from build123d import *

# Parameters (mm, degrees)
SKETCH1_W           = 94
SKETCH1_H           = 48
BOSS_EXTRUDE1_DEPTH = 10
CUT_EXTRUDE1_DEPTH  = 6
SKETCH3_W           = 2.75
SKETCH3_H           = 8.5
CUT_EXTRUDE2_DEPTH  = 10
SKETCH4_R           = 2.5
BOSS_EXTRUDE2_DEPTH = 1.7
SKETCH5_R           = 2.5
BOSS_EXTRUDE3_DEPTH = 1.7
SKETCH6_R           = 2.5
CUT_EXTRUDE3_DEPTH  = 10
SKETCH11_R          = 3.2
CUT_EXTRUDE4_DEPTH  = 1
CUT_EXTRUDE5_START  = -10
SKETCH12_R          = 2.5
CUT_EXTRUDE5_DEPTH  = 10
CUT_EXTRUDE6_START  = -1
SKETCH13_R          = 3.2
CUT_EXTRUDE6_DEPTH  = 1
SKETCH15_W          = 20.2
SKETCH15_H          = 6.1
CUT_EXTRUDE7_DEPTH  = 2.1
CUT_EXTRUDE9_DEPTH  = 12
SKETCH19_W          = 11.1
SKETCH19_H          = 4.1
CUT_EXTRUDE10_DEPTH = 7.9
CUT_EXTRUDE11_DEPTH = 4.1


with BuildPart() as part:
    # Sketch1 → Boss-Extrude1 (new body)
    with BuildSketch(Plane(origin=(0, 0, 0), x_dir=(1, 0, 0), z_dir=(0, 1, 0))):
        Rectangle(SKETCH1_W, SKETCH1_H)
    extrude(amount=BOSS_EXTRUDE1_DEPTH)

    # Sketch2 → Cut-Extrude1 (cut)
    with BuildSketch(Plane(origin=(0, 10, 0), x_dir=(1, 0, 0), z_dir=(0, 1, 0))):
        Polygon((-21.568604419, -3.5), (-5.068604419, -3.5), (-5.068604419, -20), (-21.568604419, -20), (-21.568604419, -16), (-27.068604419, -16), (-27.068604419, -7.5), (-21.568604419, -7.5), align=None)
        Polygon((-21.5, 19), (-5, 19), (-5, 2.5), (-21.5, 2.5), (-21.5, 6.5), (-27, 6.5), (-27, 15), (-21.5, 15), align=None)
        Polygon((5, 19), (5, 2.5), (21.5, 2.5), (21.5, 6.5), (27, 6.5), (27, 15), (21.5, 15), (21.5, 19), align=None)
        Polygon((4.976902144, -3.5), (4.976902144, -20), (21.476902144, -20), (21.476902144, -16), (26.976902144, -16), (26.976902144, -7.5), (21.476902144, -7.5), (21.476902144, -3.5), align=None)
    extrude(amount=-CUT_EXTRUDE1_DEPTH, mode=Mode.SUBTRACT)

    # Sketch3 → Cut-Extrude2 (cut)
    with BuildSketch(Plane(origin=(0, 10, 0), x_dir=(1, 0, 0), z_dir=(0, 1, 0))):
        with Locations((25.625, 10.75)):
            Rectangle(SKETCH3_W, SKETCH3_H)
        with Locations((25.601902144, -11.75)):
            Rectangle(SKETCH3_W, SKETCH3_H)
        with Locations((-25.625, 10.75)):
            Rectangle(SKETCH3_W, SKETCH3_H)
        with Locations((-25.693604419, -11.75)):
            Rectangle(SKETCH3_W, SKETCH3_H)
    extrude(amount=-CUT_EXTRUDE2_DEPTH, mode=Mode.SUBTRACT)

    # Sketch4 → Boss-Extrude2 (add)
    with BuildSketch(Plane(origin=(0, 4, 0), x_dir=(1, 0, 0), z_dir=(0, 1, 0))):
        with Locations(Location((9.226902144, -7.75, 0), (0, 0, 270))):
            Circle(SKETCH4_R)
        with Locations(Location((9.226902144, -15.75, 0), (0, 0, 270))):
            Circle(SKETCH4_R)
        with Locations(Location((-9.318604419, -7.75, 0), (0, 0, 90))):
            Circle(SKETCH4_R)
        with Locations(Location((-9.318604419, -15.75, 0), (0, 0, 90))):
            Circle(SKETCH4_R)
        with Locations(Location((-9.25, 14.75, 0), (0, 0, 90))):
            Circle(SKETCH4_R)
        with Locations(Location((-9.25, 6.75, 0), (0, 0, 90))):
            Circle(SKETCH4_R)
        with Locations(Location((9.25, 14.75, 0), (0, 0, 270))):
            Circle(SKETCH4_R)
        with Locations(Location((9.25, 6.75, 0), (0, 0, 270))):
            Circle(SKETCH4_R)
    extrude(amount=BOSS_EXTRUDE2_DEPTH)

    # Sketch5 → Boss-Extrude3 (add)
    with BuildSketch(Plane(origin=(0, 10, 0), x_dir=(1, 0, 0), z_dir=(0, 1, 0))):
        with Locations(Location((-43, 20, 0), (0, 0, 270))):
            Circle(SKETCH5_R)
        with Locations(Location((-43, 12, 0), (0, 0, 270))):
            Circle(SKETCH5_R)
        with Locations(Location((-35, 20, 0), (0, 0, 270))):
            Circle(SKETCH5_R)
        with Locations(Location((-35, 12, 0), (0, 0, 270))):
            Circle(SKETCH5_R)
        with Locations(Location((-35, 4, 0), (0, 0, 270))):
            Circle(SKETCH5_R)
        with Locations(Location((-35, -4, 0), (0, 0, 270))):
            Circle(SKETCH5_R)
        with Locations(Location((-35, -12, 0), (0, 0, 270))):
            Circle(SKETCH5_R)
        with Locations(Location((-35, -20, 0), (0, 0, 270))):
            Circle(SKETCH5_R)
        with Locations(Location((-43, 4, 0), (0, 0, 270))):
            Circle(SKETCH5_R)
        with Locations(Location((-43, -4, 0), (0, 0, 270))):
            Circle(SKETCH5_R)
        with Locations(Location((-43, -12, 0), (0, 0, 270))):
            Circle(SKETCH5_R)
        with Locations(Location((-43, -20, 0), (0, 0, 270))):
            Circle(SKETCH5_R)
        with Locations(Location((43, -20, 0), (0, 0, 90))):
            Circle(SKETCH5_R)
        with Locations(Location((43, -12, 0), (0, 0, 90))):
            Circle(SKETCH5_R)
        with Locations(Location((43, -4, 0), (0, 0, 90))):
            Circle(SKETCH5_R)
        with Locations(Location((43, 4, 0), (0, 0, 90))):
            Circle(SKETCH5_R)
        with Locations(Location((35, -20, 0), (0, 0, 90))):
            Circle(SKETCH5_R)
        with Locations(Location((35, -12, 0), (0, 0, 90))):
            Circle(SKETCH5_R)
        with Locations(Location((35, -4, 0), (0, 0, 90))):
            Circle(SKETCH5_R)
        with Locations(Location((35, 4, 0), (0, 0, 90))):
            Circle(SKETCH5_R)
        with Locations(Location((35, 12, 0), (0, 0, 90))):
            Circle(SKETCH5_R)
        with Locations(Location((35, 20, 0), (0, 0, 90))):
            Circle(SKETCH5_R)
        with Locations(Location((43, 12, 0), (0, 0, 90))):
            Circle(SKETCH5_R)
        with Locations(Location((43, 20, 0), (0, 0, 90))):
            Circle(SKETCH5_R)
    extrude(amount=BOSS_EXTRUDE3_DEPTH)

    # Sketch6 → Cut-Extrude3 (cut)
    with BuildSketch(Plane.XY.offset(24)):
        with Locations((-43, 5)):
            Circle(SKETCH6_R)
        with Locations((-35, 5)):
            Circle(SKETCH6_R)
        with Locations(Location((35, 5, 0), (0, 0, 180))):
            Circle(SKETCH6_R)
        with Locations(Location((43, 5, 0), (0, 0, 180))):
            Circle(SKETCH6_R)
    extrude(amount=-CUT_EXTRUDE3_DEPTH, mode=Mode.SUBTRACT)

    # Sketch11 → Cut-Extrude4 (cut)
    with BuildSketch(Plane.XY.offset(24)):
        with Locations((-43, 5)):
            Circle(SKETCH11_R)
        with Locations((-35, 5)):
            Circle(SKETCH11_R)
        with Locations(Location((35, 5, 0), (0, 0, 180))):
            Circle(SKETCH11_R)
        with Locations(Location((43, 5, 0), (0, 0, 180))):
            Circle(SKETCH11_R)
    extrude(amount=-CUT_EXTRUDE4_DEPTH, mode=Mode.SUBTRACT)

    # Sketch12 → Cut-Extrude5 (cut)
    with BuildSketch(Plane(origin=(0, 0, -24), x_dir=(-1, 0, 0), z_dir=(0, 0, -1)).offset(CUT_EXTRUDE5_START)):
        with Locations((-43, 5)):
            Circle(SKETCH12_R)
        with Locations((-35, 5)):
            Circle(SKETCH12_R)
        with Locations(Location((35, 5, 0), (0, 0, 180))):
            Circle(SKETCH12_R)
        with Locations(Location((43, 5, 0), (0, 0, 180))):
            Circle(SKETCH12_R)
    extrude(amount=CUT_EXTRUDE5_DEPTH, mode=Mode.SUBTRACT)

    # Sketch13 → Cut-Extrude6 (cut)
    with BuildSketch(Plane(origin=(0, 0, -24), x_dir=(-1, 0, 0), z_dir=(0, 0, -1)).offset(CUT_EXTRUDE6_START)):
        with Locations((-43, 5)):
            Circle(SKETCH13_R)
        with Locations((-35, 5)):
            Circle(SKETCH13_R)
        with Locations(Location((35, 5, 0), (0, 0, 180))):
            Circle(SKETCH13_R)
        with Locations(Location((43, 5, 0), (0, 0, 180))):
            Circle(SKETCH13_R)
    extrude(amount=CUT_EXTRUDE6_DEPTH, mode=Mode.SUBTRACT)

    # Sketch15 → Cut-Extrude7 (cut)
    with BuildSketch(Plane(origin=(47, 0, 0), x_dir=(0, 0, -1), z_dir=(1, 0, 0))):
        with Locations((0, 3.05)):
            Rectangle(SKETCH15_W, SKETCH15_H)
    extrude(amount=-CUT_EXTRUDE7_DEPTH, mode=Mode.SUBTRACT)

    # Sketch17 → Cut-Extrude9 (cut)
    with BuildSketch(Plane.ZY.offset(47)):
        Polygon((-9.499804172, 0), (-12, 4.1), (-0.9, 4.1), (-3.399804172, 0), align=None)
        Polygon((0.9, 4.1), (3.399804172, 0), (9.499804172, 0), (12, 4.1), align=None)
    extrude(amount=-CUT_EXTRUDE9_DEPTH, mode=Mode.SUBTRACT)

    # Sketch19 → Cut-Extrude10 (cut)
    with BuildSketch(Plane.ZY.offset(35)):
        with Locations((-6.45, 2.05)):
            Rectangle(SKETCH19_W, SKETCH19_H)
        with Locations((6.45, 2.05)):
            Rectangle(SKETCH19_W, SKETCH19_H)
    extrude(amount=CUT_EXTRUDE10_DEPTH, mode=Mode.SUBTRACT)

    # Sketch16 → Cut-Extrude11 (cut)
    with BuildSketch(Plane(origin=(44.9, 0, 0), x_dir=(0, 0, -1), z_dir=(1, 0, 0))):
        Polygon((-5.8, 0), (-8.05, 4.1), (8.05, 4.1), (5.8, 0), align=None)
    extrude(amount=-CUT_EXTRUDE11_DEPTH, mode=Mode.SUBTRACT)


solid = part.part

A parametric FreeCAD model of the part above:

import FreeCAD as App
import Part
import Sketcher

doc = App.newDocument("Part")
body = doc.addObject("PartDesign::Body", "Body")

# Sketch on XZ plane
sketch1 = body.newObject("Sketcher::SketchObject", "Sketch")
sketch1.AttachmentSupport = (doc.getObject("XZ_Plane"), [""])
sketch1.MapMode = "FlatFace"
sketch1.addGeometry(Part.LineSegment(App.Vector(-47, -24, 0), App.Vector(-47, 24, 0)), False)
sketch1.addGeometry(Part.LineSegment(App.Vector(-47, 24, 0), App.Vector(47, 24, 0)), False)
sketch1.addGeometry(Part.LineSegment(App.Vector(47, 24, 0), App.Vector(47, -24, 0)), False)
sketch1.addGeometry(Part.LineSegment(App.Vector(47, -24, 0), App.Vector(-47, -24, 0)), False)
sketch1.addConstraint(Sketcher.Constraint("Coincident", 0, 2, 1, 1))
sketch1.addConstraint(Sketcher.Constraint("Coincident", 1, 2, 2, 1))
sketch1.addConstraint(Sketcher.Constraint("Coincident", 2, 2, 3, 1))
sketch1.addConstraint(Sketcher.Constraint("Coincident", 3, 2, 0, 1))
sketch1.addConstraint(Sketcher.Constraint("Vertical", 0))
sketch1.addConstraint(Sketcher.Constraint("Horizontal", 1))
sketch1.addConstraint(Sketcher.Constraint("Vertical", 2))
sketch1.addConstraint(Sketcher.Constraint("Horizontal", 3))
sketch1.addConstraint(Sketcher.Constraint("Symmetric", 0, 2, 2, 2, -1, 1))
sketch1.addConstraint(Sketcher.Constraint("DistanceX", 1, 1, 1, 2, 94.0))
sketch1.addConstraint(Sketcher.Constraint("DistanceY", 0, 1, 0, 2, 48.0))
pad1 = body.newObject("PartDesign::Pad", "Pad")
pad1.Profile = sketch1
pad1.Length = 10
pad1.Reversed = True

# Sketch on XZ plane
sketch2 = body.newObject("Sketcher::SketchObject", "Sketch001")
sketch2.AttachmentSupport = (doc.getObject("XZ_Plane"), [""])
sketch2.MapMode = "FlatFace"
sketch2.AttachmentOffset = App.Placement(App.Vector(0, 0, -10), App.Rotation())
sketch2.addGeometry(Part.LineSegment(App.Vector(-5.1, 3.5, 0), App.Vector(-21.6, 3.5, 0)), False)
sketch2.addGeometry(Part.LineSegment(App.Vector(-21.6, 3.5, 0), App.Vector(-21.6, 7.5, 0)), False)
sketch2.addGeometry(Part.LineSegment(App.Vector(-21.6, 7.5, 0), App.Vector(-27.1, 7.5, 0)), False)
sketch2.addGeometry(Part.LineSegment(App.Vector(-27.1, 7.5, 0), App.Vector(-27.1, 16, 0)), False)
sketch2.addGeometry(Part.LineSegment(App.Vector(-27.1, 16, 0), App.Vector(-21.6, 16, 0)), False)
sketch2.addGeometry(Part.LineSegment(App.Vector(-21.6, 16, 0), App.Vector(-21.6, 20, 0)), False)
sketch2.addGeometry(Part.LineSegment(App.Vector(-21.6, 20, 0), App.Vector(-5.1, 20, 0)), False)
sketch2.addGeometry(Part.LineSegment(App.Vector(-5.1, 20, 0), App.Vector(-5.1, 3.5, 0)), False)
sketch2.addGeometry(Part.LineSegment(App.Vector(-5, -19, 0), App.Vector(-21.5, -19, 0)), False)
sketch2.addGeometry(Part.LineSegment(App.Vector(-21.5, -19, 0), App.Vector(-21.5, -15, 0)), False)
sketch2.addGeometry(Part.LineSegment(App.Vector(-21.5, -15, 0), App.Vector(-27, -15, 0)), False)
sketch2.addGeometry(Part.LineSegment(App.Vector(-27, -15, 0), App.Vector(-27, -6.5, 0)), False)
sketch2.addGeometry(Part.LineSegment(App.Vector(-27, -6.5, 0), App.Vector(-21.5, -6.5, 0)), False)
sketch2.addGeometry(Part.LineSegment(App.Vector(-21.5, -6.5, 0), App.Vector(-21.5, -2.5, 0)), False)
sketch2.addGeometry(Part.LineSegment(App.Vector(-21.5, -2.5, 0), App.Vector(-5, -2.5, 0)), False)
sketch2.addGeometry(Part.LineSegment(App.Vector(-5, -2.5, 0), App.Vector(-5, -19, 0)), False)
sketch2.addGeometry(Part.LineSegment(App.Vector(5, -19, 0), App.Vector(5, -2.5, 0)), False)
sketch2.addGeometry(Part.LineSegment(App.Vector(5, -2.5, 0), App.Vector(21.5, -2.5, 0)), False)
sketch2.addGeometry(Part.LineSegment(App.Vector(21.5, -2.5, 0), App.Vector(21.5, -6.5, 0)), False)
sketch2.addGeometry(Part.LineSegment(App.Vector(21.5, -6.5, 0), App.Vector(27, -6.5, 0)), False)
sketch2.addGeometry(Part.LineSegment(App.Vector(27, -6.5, 0), App.Vector(27, -15, 0)), False)
sketch2.addGeometry(Part.LineSegment(App.Vector(27, -15, 0), App.Vector(21.5, -15, 0)), False)
sketch2.addGeometry(Part.LineSegment(App.Vector(21.5, -15, 0), App.Vector(21.5, -19, 0)), False)
sketch2.addGeometry(Part.LineSegment(App.Vector(21.5, -19, 0), App.Vector(5, -19, 0)), False)
sketch2.addGeometry(Part.LineSegment(App.Vector(5, 3.5, 0), App.Vector(5, 20, 0)), False)
sketch2.addGeometry(Part.LineSegment(App.Vector(5, 20, 0), App.Vector(21.5, 20, 0)), False)
sketch2.addGeometry(Part.LineSegment(App.Vector(21.5, 20, 0), App.Vector(21.5, 16, 0)), False)
sketch2.addGeometry(Part.LineSegment(App.Vector(21.5, 16, 0), App.Vector(27, 16, 0)), False)
sketch2.addGeometry(Part.LineSegment(App.Vector(27, 16, 0), App.Vector(27, 7.5, 0)), False)
sketch2.addGeometry(Part.LineSegment(App.Vector(27, 7.5, 0), App.Vector(21.5, 7.5, 0)), False)
sketch2.addGeometry(Part.LineSegment(App.Vector(21.5, 7.5, 0), App.Vector(21.5, 3.5, 0)), False)
sketch2.addGeometry(Part.LineSegment(App.Vector(21.5, 3.5, 0), App.Vector(5, 3.5, 0)), False)
sketch2.addConstraint(Sketcher.Constraint("Coincident", 0, 2, 1, 1))
sketch2.addConstraint(Sketcher.Constraint("Coincident", 1, 2, 2, 1))
sketch2.addConstraint(Sketcher.Constraint("Coincident", 2, 2, 3, 1))
sketch2.addConstraint(Sketcher.Constraint("Coincident", 3, 2, 4, 1))
sketch2.addConstraint(Sketcher.Constraint("Coincident", 4, 2, 5, 1))
sketch2.addConstraint(Sketcher.Constraint("Coincident", 5, 2, 6, 1))
sketch2.addConstraint(Sketcher.Constraint("Coincident", 6, 2, 7, 1))
sketch2.addConstraint(Sketcher.Constraint("Coincident", 7, 2, 0, 1))
sketch2.addConstraint(Sketcher.Constraint("Coincident", 8, 2, 9, 1))
sketch2.addConstraint(Sketcher.Constraint("Coincident", 9, 2, 10, 1))
sketch2.addConstraint(Sketcher.Constraint("Coincident", 10, 2, 11, 1))
sketch2.addConstraint(Sketcher.Constraint("Coincident", 11, 2, 12, 1))
sketch2.addConstraint(Sketcher.Constraint("Coincident", 12, 2, 13, 1))
sketch2.addConstraint(Sketcher.Constraint("Coincident", 13, 2, 14, 1))
sketch2.addConstraint(Sketcher.Constraint("Coincident", 14, 2, 15, 1))
sketch2.addConstraint(Sketcher.Constraint("Coincident", 15, 2, 8, 1))
sketch2.addConstraint(Sketcher.Constraint("Coincident", 16, 2, 17, 1))
sketch2.addConstraint(Sketcher.Constraint("Coincident", 17, 2, 18, 1))
sketch2.addConstraint(Sketcher.Constraint("Coincident", 18, 2, 19, 1))
sketch2.addConstraint(Sketcher.Constraint("Coincident", 19, 2, 20, 1))
sketch2.addConstraint(Sketcher.Constraint("Coincident", 20, 2, 21, 1))
sketch2.addConstraint(Sketcher.Constraint("Coincident", 21, 2, 22, 1))
sketch2.addConstraint(Sketcher.Constraint("Coincident", 22, 2, 23, 1))
sketch2.addConstraint(Sketcher.Constraint("Coincident", 23, 2, 16, 1))
sketch2.addConstraint(Sketcher.Constraint("Coincident", 24, 2, 25, 1))
sketch2.addConstraint(Sketcher.Constraint("Coincident", 25, 2, 26, 1))
sketch2.addConstraint(Sketcher.Constraint("Coincident", 26, 2, 27, 1))
sketch2.addConstraint(Sketcher.Constraint("Coincident", 27, 2, 28, 1))
sketch2.addConstraint(Sketcher.Constraint("Coincident", 28, 2, 29, 1))
sketch2.addConstraint(Sketcher.Constraint("Coincident", 29, 2, 30, 1))
sketch2.addConstraint(Sketcher.Constraint("Coincident", 30, 2, 31, 1))
sketch2.addConstraint(Sketcher.Constraint("Coincident", 31, 2, 24, 1))
sketch2.addConstraint(Sketcher.Constraint("Horizontal", 0))
sketch2.addConstraint(Sketcher.Constraint("Vertical", 1))
sketch2.addConstraint(Sketcher.Constraint("Horizontal", 2))
sketch2.addConstraint(Sketcher.Constraint("Vertical", 3))
sketch2.addConstraint(Sketcher.Constraint("Horizontal", 4))
sketch2.addConstraint(Sketcher.Constraint("Vertical", 5))
sketch2.addConstraint(Sketcher.Constraint("Horizontal", 6))
sketch2.addConstraint(Sketcher.Constraint("Vertical", 7))
sketch2.addConstraint(Sketcher.Constraint("Horizontal", 8))
sketch2.addConstraint(Sketcher.Constraint("Vertical", 9))
sketch2.addConstraint(Sketcher.Constraint("Horizontal", 10))
sketch2.addConstraint(Sketcher.Constraint("Vertical", 11))
sketch2.addConstraint(Sketcher.Constraint("Horizontal", 12))
sketch2.addConstraint(Sketcher.Constraint("Vertical", 13))
sketch2.addConstraint(Sketcher.Constraint("Horizontal", 14))
sketch2.addConstraint(Sketcher.Constraint("Vertical", 15))
sketch2.addConstraint(Sketcher.Constraint("Vertical", 16))
sketch2.addConstraint(Sketcher.Constraint("Horizontal", 17))
sketch2.addConstraint(Sketcher.Constraint("Vertical", 18))
sketch2.addConstraint(Sketcher.Constraint("Horizontal", 19))
sketch2.addConstraint(Sketcher.Constraint("Vertical", 20))
sketch2.addConstraint(Sketcher.Constraint("Horizontal", 21))
sketch2.addConstraint(Sketcher.Constraint("Vertical", 22))
sketch2.addConstraint(Sketcher.Constraint("Horizontal", 23))
sketch2.addConstraint(Sketcher.Constraint("Vertical", 24))
sketch2.addConstraint(Sketcher.Constraint("Horizontal", 25))
sketch2.addConstraint(Sketcher.Constraint("Vertical", 26))
sketch2.addConstraint(Sketcher.Constraint("Horizontal", 27))
sketch2.addConstraint(Sketcher.Constraint("Vertical", 28))
sketch2.addConstraint(Sketcher.Constraint("Horizontal", 29))
sketch2.addConstraint(Sketcher.Constraint("Vertical", 30))
sketch2.addConstraint(Sketcher.Constraint("Horizontal", 31))
sketch2.addConstraint(Sketcher.Constraint("Symmetric", 14, 2, 16, 2, -2))
sketch2.addConstraint(Sketcher.Constraint("Symmetric", 12, 2, 18, 2, -2))
sketch2.addConstraint(Sketcher.Constraint("Symmetric", 10, 2, 20, 2, -2))
sketch2.addConstraint(Sketcher.Constraint("Symmetric", 8, 2, 22, 2, -2))
sketch2.addConstraint(Sketcher.Constraint("Horizontal", 6, 2, 24, 2))
sketch2.addConstraint(Sketcher.Constraint("Horizontal", 4, 2, 26, 2))
sketch2.addConstraint(Sketcher.Constraint("Horizontal", 2, 2, 28, 2))
sketch2.addConstraint(Sketcher.Constraint("Horizontal", 7, 2, 30, 2))
sketch2.addConstraint(Sketcher.Constraint("Vertical", 1, 2, 4, 2))
sketch2.addConstraint(Sketcher.Constraint("Vertical", 9, 2, 12, 2))
sketch2.addConstraint(Sketcher.Constraint("Vertical", 26, 2, 29, 2))
sketch2.addConstraint(Sketcher.Constraint("Equal", 6, 8))
sketch2.addConstraint(Sketcher.Constraint("Equal", 4, 10))
sketch2.addConstraint(Sketcher.Constraint("Equal", 23, 25))
sketch2.addConstraint(Sketcher.Constraint("Equal", 21, 27))
sketch2.addConstraint(Sketcher.Constraint("Equal", 1, 5))
sketch2.addConstraint(Sketcher.Constraint("Equal", 31, 7))
sketch2.addConstraint(Sketcher.Constraint("Equal", 5, 9))
sketch2.addConstraint(Sketcher.Constraint("Equal", 3, 11))
sketch2.addConstraint(Sketcher.Constraint("Equal", 9, 13))
sketch2.addConstraint(Sketcher.Constraint("DistanceY", 1, 1, 1, 2, 4.0))
sketch2.addConstraint(Sketcher.Constraint("DistanceX", 0, 2, 0, 1, 16.5))
sketch2.addConstraint(Sketcher.Constraint("DistanceX", 2, 2, 2, 1, 5.5))
sketch2.addConstraint(Sketcher.Constraint("DistanceY", -1, 1, 3, 2, 16.0))
sketch2.addConstraint(Sketcher.Constraint("DistanceY", 8, 2, -1, 1, 19.0))
sketch2.addConstraint(Sketcher.Constraint("DistanceX", 10, 2, -1, 1, 27.0))
sketch2.addConstraint(Sketcher.Constraint("DistanceX", 0, 2, -1, 1, 21.568604))
sketch2.addConstraint(Sketcher.Constraint("DistanceX", -1, 1, 24, 2, 4.976902))
pocket1 = body.newObject("PartDesign::Pocket", "Pocket")
pocket1.Profile = sketch2
pocket1.Length = 6
pocket1.Reversed = True

# Sketch on XZ plane
sketch3 = body.newObject("Sketcher::SketchObject", "Sketch002")
sketch3.AttachmentSupport = (doc.getObject("XZ_Plane"), [""])
sketch3.MapMode = "FlatFace"
sketch3.AttachmentOffset = App.Placement(App.Vector(0, 0, -10), App.Rotation())
sketch3.addGeometry(Part.LineSegment(App.Vector(24.2, -15, 0), App.Vector(24.2, -6.5, 0)), False)
sketch3.addGeometry(Part.LineSegment(App.Vector(24.2, -6.5, 0), App.Vector(27, -6.5, 0)), False)
sketch3.addGeometry(Part.LineSegment(App.Vector(27, -6.5, 0), App.Vector(27, -15, 0)), False)
sketch3.addGeometry(Part.LineSegment(App.Vector(27, -15, 0), App.Vector(24.2, -15, 0)), False)
sketch3.addGeometry(Part.LineSegment(App.Vector(24.2, 7.5, 0), App.Vector(24.2, 16, 0)), False)
sketch3.addGeometry(Part.LineSegment(App.Vector(24.2, 16, 0), App.Vector(27, 16, 0)), False)
sketch3.addGeometry(Part.LineSegment(App.Vector(27, 16, 0), App.Vector(27, 7.5, 0)), False)
sketch3.addGeometry(Part.LineSegment(App.Vector(27, 7.5, 0), App.Vector(24.2, 7.5, 0)), False)
sketch3.addGeometry(Part.LineSegment(App.Vector(-27, -15, 0), App.Vector(-27, -6.5, 0)), False)
sketch3.addGeometry(Part.LineSegment(App.Vector(-27, -6.5, 0), App.Vector(-24.2, -6.5, 0)), False)
sketch3.addGeometry(Part.LineSegment(App.Vector(-24.2, -6.5, 0), App.Vector(-24.2, -15, 0)), False)
sketch3.addGeometry(Part.LineSegment(App.Vector(-24.2, -15, 0), App.Vector(-27, -15, 0)), False)
sketch3.addGeometry(Part.LineSegment(App.Vector(-27.1, 7.5, 0), App.Vector(-27.1, 16, 0)), False)
sketch3.addGeometry(Part.LineSegment(App.Vector(-27.1, 16, 0), App.Vector(-24.3, 16, 0)), False)
sketch3.addGeometry(Part.LineSegment(App.Vector(-24.3, 16, 0), App.Vector(-24.3, 7.5, 0)), False)
sketch3.addGeometry(Part.LineSegment(App.Vector(-24.3, 7.5, 0), App.Vector(-27.1, 7.5, 0)), False)
sketch3.addConstraint(Sketcher.Constraint("Coincident", 0, 2, 1, 1))
sketch3.addConstraint(Sketcher.Constraint("Coincident", 1, 2, 2, 1))
sketch3.addConstraint(Sketcher.Constraint("Coincident", 2, 2, 3, 1))
sketch3.addConstraint(Sketcher.Constraint("Coincident", 3, 2, 0, 1))
sketch3.addConstraint(Sketcher.Constraint("Coincident", 4, 2, 5, 1))
sketch3.addConstraint(Sketcher.Constraint("Coincident", 5, 2, 6, 1))
sketch3.addConstraint(Sketcher.Constraint("Coincident", 6, 2, 7, 1))
sketch3.addConstraint(Sketcher.Constraint("Coincident", 7, 2, 4, 1))
sketch3.addConstraint(Sketcher.Constraint("Coincident", 8, 2, 9, 1))
sketch3.addConstraint(Sketcher.Constraint("Coincident", 9, 2, 10, 1))
sketch3.addConstraint(Sketcher.Constraint("Coincident", 10, 2, 11, 1))
sketch3.addConstraint(Sketcher.Constraint("Coincident", 11, 2, 8, 1))
sketch3.addConstraint(Sketcher.Constraint("Coincident", 12, 2, 13, 1))
sketch3.addConstraint(Sketcher.Constraint("Coincident", 13, 2, 14, 1))
sketch3.addConstraint(Sketcher.Constraint("Coincident", 14, 2, 15, 1))
sketch3.addConstraint(Sketcher.Constraint("Coincident", 15, 2, 12, 1))
sketch3.addConstraint(Sketcher.Constraint("Vertical", 0))
sketch3.addConstraint(Sketcher.Constraint("Horizontal", 1))
sketch3.addConstraint(Sketcher.Constraint("Vertical", 2))
sketch3.addConstraint(Sketcher.Constraint("Horizontal", 3))
sketch3.addConstraint(Sketcher.Constraint("Vertical", 4))
sketch3.addConstraint(Sketcher.Constraint("Horizontal", 5))
sketch3.addConstraint(Sketcher.Constraint("Vertical", 6))
sketch3.addConstraint(Sketcher.Constraint("Horizontal", 7))
sketch3.addConstraint(Sketcher.Constraint("Vertical", 8))
sketch3.addConstraint(Sketcher.Constraint("Horizontal", 9))
sketch3.addConstraint(Sketcher.Constraint("Vertical", 10))
sketch3.addConstraint(Sketcher.Constraint("Horizontal", 11))
sketch3.addConstraint(Sketcher.Constraint("Vertical", 12))
sketch3.addConstraint(Sketcher.Constraint("Horizontal", 13))
sketch3.addConstraint(Sketcher.Constraint("Vertical", 14))
sketch3.addConstraint(Sketcher.Constraint("Horizontal", 15))
sketch3.addConstraint(Sketcher.Constraint("Symmetric", 1, 2, 8, 2, -2))
sketch3.addConstraint(Sketcher.Constraint("Symmetric", 3, 2, 10, 2, -2))
sketch3.addConstraint(Sketcher.Constraint("Horizontal", 5, 2, 12, 2))
sketch3.addConstraint(Sketcher.Constraint("Horizontal", 7, 2, 14, 2))
sketch3.addConstraint(Sketcher.Constraint("Equal", 3, 5))
sketch3.addConstraint(Sketcher.Constraint("Equal", 11, 13))
sketch3.addConstraint(Sketcher.Constraint("Equal", 2, 4))
sketch3.addConstraint(Sketcher.Constraint("DistanceY", 0, 1, 0, 2, 8.5))
sketch3.addConstraint(Sketcher.Constraint("DistanceX", -1, 1, 1, 2, 27.0))
sketch3.addConstraint(Sketcher.Constraint("DistanceY", 2, 2, -1, 1, 15.0))
sketch3.addConstraint(Sketcher.Constraint("DistanceY", -1, 1, 4, 2, 16.0))
sketch3.addConstraint(Sketcher.Constraint("DistanceX", 1, 1, 1, 2, 2.75))
sketch3.addConstraint(Sketcher.Constraint("DistanceX", -1, 1, 4, 2, 24.226902))
sketch3.addConstraint(Sketcher.Constraint("DistanceX", 12, 2, -1, 1, 27.068604))
pocket2 = body.newObject("PartDesign::Pocket", "Pocket001")
pocket2.Profile = sketch3
pocket2.Length = 10
pocket2.Reversed = True

# Sketch on XZ plane
sketch4 = body.newObject("Sketcher::SketchObject", "Sketch003")
sketch4.AttachmentSupport = (doc.getObject("XZ_Plane"), [""])
sketch4.MapMode = "FlatFace"
sketch4.AttachmentOffset = App.Placement(App.Vector(0, 0, -4), App.Rotation())
sketch4.addGeometry(Part.Circle(App.Vector(9.2, 7.8, 0), App.Vector(0, 0, 1), 2.5), False)
sketch4.addGeometry(Part.Circle(App.Vector(9.2, 15.8, 0), App.Vector(0, 0, 1), 2.5), False)
sketch4.addGeometry(Part.Circle(App.Vector(-9.3, 7.8, 0), App.Vector(0, 0, 1), 2.5), False)
sketch4.addGeometry(Part.Circle(App.Vector(-9.3, 15.8, 0), App.Vector(0, 0, 1), 2.5), False)
sketch4.addGeometry(Part.Circle(App.Vector(-9.2, -14.8, 0), App.Vector(0, 0, 1), 2.5), False)
sketch4.addGeometry(Part.Circle(App.Vector(-9.2, -6.8, 0), App.Vector(0, 0, 1), 2.5), False)
sketch4.addGeometry(Part.Circle(App.Vector(9.2, -14.8, 0), App.Vector(0, 0, 1), 2.5), False)
sketch4.addGeometry(Part.Circle(App.Vector(9.2, -6.8, 0), App.Vector(0, 0, 1), 2.5), False)
sketch4.addConstraint(Sketcher.Constraint("Equal", 0, 1))
sketch4.addConstraint(Sketcher.Constraint("Equal", 1, 2))
sketch4.addConstraint(Sketcher.Constraint("Equal", 2, 3))
sketch4.addConstraint(Sketcher.Constraint("Equal", 3, 4))
sketch4.addConstraint(Sketcher.Constraint("Equal", 4, 5))
sketch4.addConstraint(Sketcher.Constraint("Equal", 5, 6))
sketch4.addConstraint(Sketcher.Constraint("Equal", 6, 7))
sketch4.addConstraint(Sketcher.Constraint("Symmetric", 4, 3, 6, 3, -2))
sketch4.addConstraint(Sketcher.Constraint("Symmetric", 5, 3, 7, 3, -2))
sketch4.addConstraint(Sketcher.Constraint("Horizontal", 0, 3, 2, 3))
sketch4.addConstraint(Sketcher.Constraint("Horizontal", 1, 3, 3, 3))
sketch4.addConstraint(Sketcher.Constraint("Vertical", 0, 3, 1, 3))
sketch4.addConstraint(Sketcher.Constraint("Vertical", 2, 3, 3, 3))
sketch4.addConstraint(Sketcher.Constraint("Vertical", 4, 3, 5, 3))
sketch4.addConstraint(Sketcher.Constraint("Diameter", 0, 5.0))
sketch4.addConstraint(Sketcher.Constraint("DistanceY", 0, 3, 1, 3, 8.0))
sketch4.addConstraint(Sketcher.Constraint("DistanceY", 4, 3, 5, 3, 8.0))
sketch4.addConstraint(Sketcher.Constraint("DistanceY", 4, 3, 2, 3, 22.5))
sketch4.addConstraint(Sketcher.Constraint("DistanceX", 4, 3, 6, 3, 18.5))
sketch4.addConstraint(Sketcher.Constraint("DistanceY", -1, 1, 0, 3, 7.75))
sketch4.addConstraint(Sketcher.Constraint("DistanceX", -1, 1, 0, 3, 9.226902))
sketch4.addConstraint(Sketcher.Constraint("DistanceX", 2, 3, -1, 1, 9.318604))
pad2 = body.newObject("PartDesign::Pad", "Pad001")
pad2.Profile = sketch4
pad2.Length = 1.7
pad2.Reversed = True

# Sketch on XZ plane
sketch5 = body.newObject("Sketcher::SketchObject", "Sketch004")
sketch5.AttachmentSupport = (doc.getObject("XZ_Plane"), [""])
sketch5.MapMode = "FlatFace"
sketch5.AttachmentOffset = App.Placement(App.Vector(0, 0, -10), App.Rotation())
sketch5.addGeometry(Part.Circle(App.Vector(-43, -20, 0), App.Vector(0, 0, 1), 2.5), False)
sketch5.addGeometry(Part.Circle(App.Vector(-43, -12, 0), App.Vector(0, 0, 1), 2.5), False)
sketch5.addGeometry(Part.Circle(App.Vector(-35, -20, 0), App.Vector(0, 0, 1), 2.5), False)
sketch5.addGeometry(Part.Circle(App.Vector(-35, -12, 0), App.Vector(0, 0, 1), 2.5), False)
sketch5.addGeometry(Part.Circle(App.Vector(-35, -4, 0), App.Vector(0, 0, 1), 2.5), False)
sketch5.addGeometry(Part.Circle(App.Vector(-35, 4, 0), App.Vector(0, 0, 1), 2.5), False)
sketch5.addGeometry(Part.Circle(App.Vector(-35, 12, 0), App.Vector(0, 0, 1), 2.5), False)
sketch5.addGeometry(Part.Circle(App.Vector(-35, 20, 0), App.Vector(0, 0, 1), 2.5), False)
sketch5.addGeometry(Part.Circle(App.Vector(-43, -4, 0), App.Vector(0, 0, 1), 2.5), False)
sketch5.addGeometry(Part.Circle(App.Vector(-43, 4, 0), App.Vector(0, 0, 1), 2.5), False)
sketch5.addGeometry(Part.Circle(App.Vector(-43, 12, 0), App.Vector(0, 0, 1), 2.5), False)
sketch5.addGeometry(Part.Circle(App.Vector(-43, 20, 0), App.Vector(0, 0, 1), 2.5), False)
sketch5.addGeometry(Part.Circle(App.Vector(43, 20, 0), App.Vector(0, 0, 1), 2.5), False)
sketch5.addGeometry(Part.Circle(App.Vector(43, 12, 0), App.Vector(0, 0, 1), 2.5), False)
sketch5.addGeometry(Part.Circle(App.Vector(43, 4, 0), App.Vector(0, 0, 1), 2.5), False)
sketch5.addGeometry(Part.Circle(App.Vector(43, -4, 0), App.Vector(0, 0, 1), 2.5), False)
sketch5.addGeometry(Part.Circle(App.Vector(35, 20, 0), App.Vector(0, 0, 1), 2.5), False)
sketch5.addGeometry(Part.Circle(App.Vector(35, 12, 0), App.Vector(0, 0, 1), 2.5), False)
sketch5.addGeometry(Part.Circle(App.Vector(35, 4, 0), App.Vector(0, 0, 1), 2.5), False)
sketch5.addGeometry(Part.Circle(App.Vector(35, -4, 0), App.Vector(0, 0, 1), 2.5), False)
sketch5.addGeometry(Part.Circle(App.Vector(35, -12, 0), App.Vector(0, 0, 1), 2.5), False)
sketch5.addGeometry(Part.Circle(App.Vector(35, -20, 0), App.Vector(0, 0, 1), 2.5), False)
sketch5.addGeometry(Part.Circle(App.Vector(43, -12, 0), App.Vector(0, 0, 1), 2.5), False)
sketch5.addGeometry(Part.Circle(App.Vector(43, -20, 0), App.Vector(0, 0, 1), 2.5), False)
sketch5.addConstraint(Sketcher.Constraint("Equal", 0, 1))
sketch5.addConstraint(Sketcher.Constraint("Equal", 1, 2))
sketch5.addConstraint(Sketcher.Constraint("Equal", 2, 3))
sketch5.addConstraint(Sketcher.Constraint("Equal", 3, 4))
sketch5.addConstraint(Sketcher.Constraint("Equal", 4, 5))
sketch5.addConstraint(Sketcher.Constraint("Equal", 5, 6))
sketch5.addConstraint(Sketcher.Constraint("Equal", 6, 7))
sketch5.addConstraint(Sketcher.Constraint("Equal", 7, 8))
sketch5.addConstraint(Sketcher.Constraint("Equal", 8, 9))
sketch5.addConstraint(Sketcher.Constraint("Equal", 9, 10))
sketch5.addConstraint(Sketcher.Constraint("Equal", 10, 11))
sketch5.addConstraint(Sketcher.Constraint("Equal", 11, 12))
sketch5.addConstraint(Sketcher.Constraint("Equal", 12, 13))
sketch5.addConstraint(Sketcher.Constraint("Equal", 13, 14))
sketch5.addConstraint(Sketcher.Constraint("Equal", 14, 15))
sketch5.addConstraint(Sketcher.Constraint("Equal", 15, 16))
sketch5.addConstraint(Sketcher.Constraint("Equal", 16, 17))
sketch5.addConstraint(Sketcher.Constraint("Equal", 17, 18))
sketch5.addConstraint(Sketcher.Constraint("Equal", 18, 19))
sketch5.addConstraint(Sketcher.Constraint("Equal", 19, 20))
sketch5.addConstraint(Sketcher.Constraint("Equal", 20, 21))
sketch5.addConstraint(Sketcher.Constraint("Equal", 21, 22))
sketch5.addConstraint(Sketcher.Constraint("Equal", 22, 23))
sketch5.addConstraint(Sketcher.Constraint("Symmetric", 0, 3, 12, 3, -1, 1))
sketch5.addConstraint(Sketcher.Constraint("Symmetric", 1, 3, 13, 3, -1, 1))
sketch5.addConstraint(Sketcher.Constraint("Symmetric", 8, 3, 14, 3, -1, 1))
sketch5.addConstraint(Sketcher.Constraint("Symmetric", 9, 3, 15, 3, -1, 1))
sketch5.addConstraint(Sketcher.Constraint("Symmetric", 2, 3, 16, 3, -1, 1))
sketch5.addConstraint(Sketcher.Constraint("Symmetric", 3, 3, 17, 3, -1, 1))
sketch5.addConstraint(Sketcher.Constraint("Symmetric", 4, 3, 18, 3, -1, 1))
sketch5.addConstraint(Sketcher.Constraint("Symmetric", 5, 3, 19, 3, -1, 1))
sketch5.addConstraint(Sketcher.Constraint("Symmetric", 6, 3, 20, 3, -1, 1))
sketch5.addConstraint(Sketcher.Constraint("Symmetric", 7, 3, 21, 3, -1, 1))
sketch5.addConstraint(Sketcher.Constraint("Symmetric", 10, 3, 22, 3, -1, 1))
sketch5.addConstraint(Sketcher.Constraint("Symmetric", 11, 3, 23, 3, -1, 1))
sketch5.addConstraint(Sketcher.Constraint("Symmetric", 11, 3, 12, 3, -2))
sketch5.addConstraint(Sketcher.Constraint("Symmetric", 10, 3, 13, 3, -2))
sketch5.addConstraint(Sketcher.Constraint("Symmetric", 9, 3, 14, 3, -2))
sketch5.addConstraint(Sketcher.Constraint("Symmetric", 7, 3, 16, 3, -2))
sketch5.addConstraint(Sketcher.Constraint("Symmetric", 6, 3, 17, 3, -2))
sketch5.addConstraint(Sketcher.Constraint("Symmetric", 5, 3, 18, 3, -2))
sketch5.addConstraint(Sketcher.Constraint("Horizontal", 0, 3, 2, 3))
sketch5.addConstraint(Sketcher.Constraint("Horizontal", 1, 3, 3, 3))
sketch5.addConstraint(Sketcher.Constraint("Horizontal", 4, 3, 8, 3))
sketch5.addConstraint(Sketcher.Constraint("Vertical", 0, 3, 1, 3))
sketch5.addConstraint(Sketcher.Constraint("Vertical", 2, 3, 3, 3))
sketch5.addConstraint(Sketcher.Constraint("Vertical", 3, 3, 4, 3))
sketch5.addConstraint(Sketcher.Constraint("Vertical", 1, 3, 8, 3))
sketch5.addConstraint(Sketcher.Constraint("Diameter", 0, 5.0))
sketch5.addConstraint(Sketcher.Constraint("DistanceX", 0, 3, -1, 1, 43.0))
sketch5.addConstraint(Sketcher.Constraint("DistanceY", 0, 3, -1, 1, 20.0))
sketch5.addConstraint(Sketcher.Constraint("DistanceY", 1, 3, -1, 1, 12.0))
sketch5.addConstraint(Sketcher.Constraint("DistanceX", 2, 3, -1, 1, 35.0))
sketch5.addConstraint(Sketcher.Constraint("DistanceY", 4, 3, -1, 1, 4.0))
pad3 = body.newObject("PartDesign::Pad", "Pad002")
pad3.Profile = sketch5
pad3.Length = 1.7
pad3.Reversed = True

# Sketch on XY plane
sketch6 = body.newObject("Sketcher::SketchObject", "Sketch005")
sketch6.AttachmentSupport = (doc.getObject("XY_Plane"), [""])
sketch6.MapMode = "FlatFace"
sketch6.AttachmentOffset = App.Placement(App.Vector(0, 0, 24), App.Rotation())
sketch6.addGeometry(Part.Circle(App.Vector(-43, 5, 0), App.Vector(0, 0, 1), 2.5), False)
sketch6.addGeometry(Part.Circle(App.Vector(-35, 5, 0), App.Vector(0, 0, 1), 2.5), False)
sketch6.addGeometry(Part.Circle(App.Vector(35, 5, 0), App.Vector(0, 0, 1), 2.5), False)
sketch6.addGeometry(Part.Circle(App.Vector(43, 5, 0), App.Vector(0, 0, 1), 2.5), False)
sketch6.addConstraint(Sketcher.Constraint("Equal", 0, 1))
sketch6.addConstraint(Sketcher.Constraint("Equal", 1, 2))
sketch6.addConstraint(Sketcher.Constraint("Equal", 2, 3))
sketch6.addConstraint(Sketcher.Constraint("Symmetric", 1, 3, 2, 3, -2))
sketch6.addConstraint(Sketcher.Constraint("Symmetric", 0, 3, 3, 3, -2))
sketch6.addConstraint(Sketcher.Constraint("Horizontal", 0, 3, 1, 3))
sketch6.addConstraint(Sketcher.Constraint("Diameter", 0, 5.0))
sketch6.addConstraint(Sketcher.Constraint("DistanceX", 0, 3, -1, 1, 43.0))
sketch6.addConstraint(Sketcher.Constraint("DistanceY", -1, 1, 0, 3, 5.0))
sketch6.addConstraint(Sketcher.Constraint("DistanceX", 1, 3, -1, 1, 35.0))
pocket3 = body.newObject("PartDesign::Pocket", "Pocket002")
pocket3.Profile = sketch6
pocket3.Length = 10

# Sketch on XY plane
sketch7 = body.newObject("Sketcher::SketchObject", "Sketch006")
sketch7.AttachmentSupport = (doc.getObject("XY_Plane"), [""])
sketch7.MapMode = "FlatFace"
sketch7.AttachmentOffset = App.Placement(App.Vector(0, 0, 24), App.Rotation())
sketch7.addGeometry(Part.Circle(App.Vector(-43, 5, 0), App.Vector(0, 0, 1), 3.2), False)
sketch7.addGeometry(Part.Circle(App.Vector(-35, 5, 0), App.Vector(0, 0, 1), 3.2), False)
sketch7.addGeometry(Part.Circle(App.Vector(35, 5, 0), App.Vector(0, 0, 1), 3.2), False)
sketch7.addGeometry(Part.Circle(App.Vector(43, 5, 0), App.Vector(0, 0, 1), 3.2), False)
sketch7.addConstraint(Sketcher.Constraint("Equal", 0, 1))
sketch7.addConstraint(Sketcher.Constraint("Equal", 1, 2))
sketch7.addConstraint(Sketcher.Constraint("Equal", 2, 3))
sketch7.addConstraint(Sketcher.Constraint("Symmetric", 1, 3, 2, 3, -2))
sketch7.addConstraint(Sketcher.Constraint("Symmetric", 0, 3, 3, 3, -2))
sketch7.addConstraint(Sketcher.Constraint("Horizontal", 0, 3, 1, 3))
sketch7.addConstraint(Sketcher.Constraint("Diameter", 0, 6.4))
sketch7.addConstraint(Sketcher.Constraint("DistanceX", 0, 3, -1, 1, 43.0))
sketch7.addConstraint(Sketcher.Constraint("DistanceY", -1, 1, 0, 3, 5.0))
sketch7.addConstraint(Sketcher.Constraint("DistanceX", 1, 3, -1, 1, 35.0))
pocket4 = body.newObject("PartDesign::Pocket", "Pocket003")
pocket4.Profile = sketch7
pocket4.Length = 1

# Sketch on XY plane
sketch8 = body.newObject("Sketcher::SketchObject", "Sketch007")
sketch8.AttachmentSupport = (doc.getObject("XY_Plane"), [""])
sketch8.MapMode = "FlatFace"
sketch8.AttachmentOffset = App.Placement(App.Vector(0, 0, -14), App.Rotation())
sketch8.addGeometry(Part.Circle(App.Vector(43, 5, 0), App.Vector(0, 0, 1), 2.5), False)
sketch8.addGeometry(Part.Circle(App.Vector(35, 5, 0), App.Vector(0, 0, 1), 2.5), False)
sketch8.addGeometry(Part.Circle(App.Vector(-35, 5, 0), App.Vector(0, 0, 1), 2.5), False)
sketch8.addGeometry(Part.Circle(App.Vector(-43, 5, 0), App.Vector(0, 0, 1), 2.5), False)
sketch8.addConstraint(Sketcher.Constraint("Equal", 0, 1))
sketch8.addConstraint(Sketcher.Constraint("Equal", 1, 2))
sketch8.addConstraint(Sketcher.Constraint("Equal", 2, 3))
sketch8.addConstraint(Sketcher.Constraint("Symmetric", 1, 3, 2, 3, -2))
sketch8.addConstraint(Sketcher.Constraint("Symmetric", 0, 3, 3, 3, -2))
sketch8.addConstraint(Sketcher.Constraint("Horizontal", 0, 3, 1, 3))
sketch8.addConstraint(Sketcher.Constraint("Diameter", 0, 5.0))
sketch8.addConstraint(Sketcher.Constraint("DistanceX", -1, 1, 0, 3, 43.0))
sketch8.addConstraint(Sketcher.Constraint("DistanceY", -1, 1, 0, 3, 5.0))
sketch8.addConstraint(Sketcher.Constraint("DistanceX", -1, 1, 1, 3, 35.0))
pocket5 = body.newObject("PartDesign::Pocket", "Pocket004")
pocket5.Profile = sketch8
pocket5.Length = 10

# Sketch on XY plane
sketch9 = body.newObject("Sketcher::SketchObject", "Sketch008")
sketch9.AttachmentSupport = (doc.getObject("XY_Plane"), [""])
sketch9.MapMode = "FlatFace"
sketch9.AttachmentOffset = App.Placement(App.Vector(0, 0, -23), App.Rotation())
sketch9.addGeometry(Part.Circle(App.Vector(43, 5, 0), App.Vector(0, 0, 1), 3.2), False)
sketch9.addGeometry(Part.Circle(App.Vector(35, 5, 0), App.Vector(0, 0, 1), 3.2), False)
sketch9.addGeometry(Part.Circle(App.Vector(-35, 5, 0), App.Vector(0, 0, 1), 3.2), False)
sketch9.addGeometry(Part.Circle(App.Vector(-43, 5, 0), App.Vector(0, 0, 1), 3.2), False)
sketch9.addConstraint(Sketcher.Constraint("Equal", 0, 1))
sketch9.addConstraint(Sketcher.Constraint("Equal", 1, 2))
sketch9.addConstraint(Sketcher.Constraint("Equal", 2, 3))
sketch9.addConstraint(Sketcher.Constraint("Symmetric", 1, 3, 2, 3, -2))
sketch9.addConstraint(Sketcher.Constraint("Symmetric", 0, 3, 3, 3, -2))
sketch9.addConstraint(Sketcher.Constraint("Horizontal", 0, 3, 1, 3))
sketch9.addConstraint(Sketcher.Constraint("Diameter", 0, 6.4))
sketch9.addConstraint(Sketcher.Constraint("DistanceX", -1, 1, 0, 3, 43.0))
sketch9.addConstraint(Sketcher.Constraint("DistanceY", -1, 1, 0, 3, 5.0))
sketch9.addConstraint(Sketcher.Constraint("DistanceX", -1, 1, 1, 3, 35.0))
pocket6 = body.newObject("PartDesign::Pocket", "Pocket005")
pocket6.Profile = sketch9
pocket6.Length = 1

# Sketch on YZ plane
sketch10 = body.newObject("Sketcher::SketchObject", "Sketch009")
sketch10.AttachmentSupport = (doc.getObject("YZ_Plane"), [""])
sketch10.MapMode = "FlatFace"
sketch10.AttachmentOffset = App.Placement(App.Vector(0, 0, 47), App.Rotation())
sketch10.addGeometry(Part.LineSegment(App.Vector(6, 10, 0), App.Vector(0, 10, 0)), False)
sketch10.addGeometry(Part.LineSegment(App.Vector(0, 10, 0), App.Vector(0, -10, 0)), False)
sketch10.addGeometry(Part.LineSegment(App.Vector(0, -10, 0), App.Vector(6, -10, 0)), False)
sketch10.addGeometry(Part.LineSegment(App.Vector(6, -10, 0), App.Vector(6, 10, 0)), False)
sketch10.addConstraint(Sketcher.Constraint("Coincident", 0, 2, 1, 1))
sketch10.addConstraint(Sketcher.Constraint("Coincident", 1, 2, 2, 1))
sketch10.addConstraint(Sketcher.Constraint("Coincident", 2, 2, 3, 1))
sketch10.addConstraint(Sketcher.Constraint("Coincident", 3, 2, 0, 1))
sketch10.addConstraint(Sketcher.Constraint("Horizontal", 0))
sketch10.addConstraint(Sketcher.Constraint("Vertical", 1))
sketch10.addConstraint(Sketcher.Constraint("Horizontal", 2))
sketch10.addConstraint(Sketcher.Constraint("Vertical", 3))
sketch10.addConstraint(Sketcher.Constraint("Symmetric", 0, 2, 1, 2, -1, 1))
sketch10.addConstraint(Sketcher.Constraint("DistanceX", 0, 2, 0, 1, 6.1))
sketch10.addConstraint(Sketcher.Constraint("DistanceY", 1, 2, 1, 1, 20.2))
pocket7 = body.newObject("PartDesign::Pocket", "Pocket006")
pocket7.Profile = sketch10
pocket7.Length = 2.1

# Sketch on YZ plane
sketch11 = body.newObject("Sketcher::SketchObject", "Sketch010")
sketch11.AttachmentSupport = (doc.getObject("YZ_Plane"), [""])
sketch11.MapMode = "FlatFace"
sketch11.AttachmentOffset = App.Placement(App.Vector(0, 0, -47), App.Rotation())
sketch11.addGeometry(Part.LineSegment(App.Vector(4.1, -12, 0), App.Vector(0, -9.5, 0)), False)
sketch11.addGeometry(Part.LineSegment(App.Vector(0, -9.5, 0), App.Vector(0, -3.4, 0)), False)
sketch11.addGeometry(Part.LineSegment(App.Vector(0, -3.4, 0), App.Vector(4.1, -0.9, 0)), False)
sketch11.addGeometry(Part.LineSegment(App.Vector(4.1, -0.9, 0), App.Vector(4.1, -12, 0)), False)
sketch11.addGeometry(Part.LineSegment(App.Vector(4.1, 0.9, 0), App.Vector(0, 3.4, 0)), False)
sketch11.addGeometry(Part.LineSegment(App.Vector(0, 3.4, 0), App.Vector(0, 9.5, 0)), False)
sketch11.addGeometry(Part.LineSegment(App.Vector(0, 9.5, 0), App.Vector(4.1, 12, 0)), False)
sketch11.addGeometry(Part.LineSegment(App.Vector(4.1, 12, 0), App.Vector(4.1, 0.9, 0)), False)
sketch11.addConstraint(Sketcher.Constraint("Coincident", 0, 2, 1, 1))
sketch11.addConstraint(Sketcher.Constraint("Coincident", 1, 2, 2, 1))
sketch11.addConstraint(Sketcher.Constraint("Coincident", 2, 2, 3, 1))
sketch11.addConstraint(Sketcher.Constraint("Coincident", 3, 2, 0, 1))
sketch11.addConstraint(Sketcher.Constraint("Coincident", 4, 2, 5, 1))
sketch11.addConstraint(Sketcher.Constraint("Coincident", 5, 2, 6, 1))
sketch11.addConstraint(Sketcher.Constraint("Coincident", 6, 2, 7, 1))
sketch11.addConstraint(Sketcher.Constraint("Coincident", 7, 2, 4, 1))
sketch11.addConstraint(Sketcher.Constraint("Vertical", 1))
sketch11.addConstraint(Sketcher.Constraint("Vertical", 3))
sketch11.addConstraint(Sketcher.Constraint("Vertical", 5))
sketch11.addConstraint(Sketcher.Constraint("Vertical", 7))
sketch11.addConstraint(Sketcher.Constraint("Symmetric", 1, 2, 4, 2, -1, 1))
sketch11.addConstraint(Sketcher.Constraint("Symmetric", 0, 2, 5, 2, -1))
sketch11.addConstraint(Sketcher.Constraint("Symmetric", 3, 2, 6, 2, -1))
sketch11.addConstraint(Sketcher.Constraint("Equal", 3, 7))
sketch11.addConstraint(Sketcher.Constraint("DistanceY", 1, 1, 1, 2, 6.1))
sketch11.addConstraint(Sketcher.Constraint("DistanceY", 3, 2, 3, 1, 11.1))
sketch11.addConstraint(Sketcher.Constraint("DistanceY", 3, 2, -1, 1, 12.0))
sketch11.addConstraint(Sketcher.Constraint("DistanceX", -1, 1, 2, 2, 4.1))
sketch11.addConstraint(Sketcher.Constraint("Distance", 2, 4.801981))
pocket8 = body.newObject("PartDesign::Pocket", "Pocket007")
pocket8.Profile = sketch11
pocket8.Length = 12
pocket8.Reversed = True

# Sketch on YZ plane
sketch12 = body.newObject("Sketcher::SketchObject", "Sketch011")
sketch12.AttachmentSupport = (doc.getObject("YZ_Plane"), [""])
sketch12.MapMode = "FlatFace"
sketch12.AttachmentOffset = App.Placement(App.Vector(0, 0, -35), App.Rotation())
sketch12.addGeometry(Part.LineSegment(App.Vector(4.1, -12, 0), App.Vector(0, -12, 0)), False)
sketch12.addGeometry(Part.LineSegment(App.Vector(0, -12, 0), App.Vector(0, -0.9, 0)), False)
sketch12.addGeometry(Part.LineSegment(App.Vector(0, -0.9, 0), App.Vector(4.1, -0.9, 0)), False)
sketch12.addGeometry(Part.LineSegment(App.Vector(4.1, -0.9, 0), App.Vector(4.1, -12, 0)), False)
sketch12.addGeometry(Part.LineSegment(App.Vector(4.1, 0.9, 0), App.Vector(0, 0.9, 0)), False)
sketch12.addGeometry(Part.LineSegment(App.Vector(0, 0.9, 0), App.Vector(0, 12, 0)), False)
sketch12.addGeometry(Part.LineSegment(App.Vector(0, 12, 0), App.Vector(4.1, 12, 0)), False)
sketch12.addGeometry(Part.LineSegment(App.Vector(4.1, 12, 0), App.Vector(4.1, 0.9, 0)), False)
sketch12.addConstraint(Sketcher.Constraint("Coincident", 0, 2, 1, 1))
sketch12.addConstraint(Sketcher.Constraint("Coincident", 1, 2, 2, 1))
sketch12.addConstraint(Sketcher.Constraint("Coincident", 2, 2, 3, 1))
sketch12.addConstraint(Sketcher.Constraint("Coincident", 3, 2, 0, 1))
sketch12.addConstraint(Sketcher.Constraint("Coincident", 4, 2, 5, 1))
sketch12.addConstraint(Sketcher.Constraint("Coincident", 5, 2, 6, 1))
sketch12.addConstraint(Sketcher.Constraint("Coincident", 6, 2, 7, 1))
sketch12.addConstraint(Sketcher.Constraint("Coincident", 7, 2, 4, 1))
sketch12.addConstraint(Sketcher.Constraint("Horizontal", 0))
sketch12.addConstraint(Sketcher.Constraint("Vertical", 1))
sketch12.addConstraint(Sketcher.Constraint("Horizontal", 2))
sketch12.addConstraint(Sketcher.Constraint("Vertical", 3))
sketch12.addConstraint(Sketcher.Constraint("Horizontal", 4))
sketch12.addConstraint(Sketcher.Constraint("Vertical", 5))
sketch12.addConstraint(Sketcher.Constraint("Horizontal", 6))
sketch12.addConstraint(Sketcher.Constraint("Vertical", 7))
sketch12.addConstraint(Sketcher.Constraint("Symmetric", 1, 2, 4, 2, -1, 1))
sketch12.addConstraint(Sketcher.Constraint("Symmetric", 0, 2, 5, 2, -1))
sketch12.addConstraint(Sketcher.Constraint("Vertical", 3, 2, 6, 2))
sketch12.addConstraint(Sketcher.Constraint("DistanceX", 0, 2, 0, 1, 4.1))
sketch12.addConstraint(Sketcher.Constraint("DistanceY", 1, 1, 1, 2, 11.1))
sketch12.addConstraint(Sketcher.Constraint("DistanceY", 0, 2, -1, 1, 12.0))
pocket9 = body.newObject("PartDesign::Pocket", "Pocket008")
pocket9.Profile = sketch12
pocket9.Length = 7.9

# Sketch on YZ plane
sketch13 = body.newObject("Sketcher::SketchObject", "Sketch012")
sketch13.AttachmentSupport = (doc.getObject("YZ_Plane"), [""])
sketch13.MapMode = "FlatFace"
sketch13.AttachmentOffset = App.Placement(App.Vector(0, 0, 44.9), App.Rotation())
sketch13.addGeometry(Part.LineSegment(App.Vector(4.1, 8.1, 0), App.Vector(0, 5.8, 0)), False)
sketch13.addGeometry(Part.LineSegment(App.Vector(0, 5.8, 0), App.Vector(0, -5.8, 0)), False)
sketch13.addGeometry(Part.LineSegment(App.Vector(0, -5.8, 0), App.Vector(4.1, -8.1, 0)), False)
sketch13.addGeometry(Part.LineSegment(App.Vector(4.1, -8.1, 0), App.Vector(4.1, 8.1, 0)), False)
sketch13.addConstraint(Sketcher.Constraint("Coincident", 0, 2, 1, 1))
sketch13.addConstraint(Sketcher.Constraint("Coincident", 1, 2, 2, 1))
sketch13.addConstraint(Sketcher.Constraint("Coincident", 2, 2, 3, 1))
sketch13.addConstraint(Sketcher.Constraint("Coincident", 3, 2, 0, 1))
sketch13.addConstraint(Sketcher.Constraint("Vertical", 1))
sketch13.addConstraint(Sketcher.Constraint("Vertical", 3))
sketch13.addConstraint(Sketcher.Constraint("Symmetric", 0, 2, 1, 2, -1, 1))
sketch13.addConstraint(Sketcher.Constraint("Equal", 0, 2))
sketch13.addConstraint(Sketcher.Constraint("DistanceY", 1, 2, 1, 1, 11.6))
sketch13.addConstraint(Sketcher.Constraint("DistanceY", 3, 1, 3, 2, 16.1))
sketch13.addConstraint(Sketcher.Constraint("DistanceX", -1, 1, 2, 2, 4.1))
pocket10 = body.newObject("PartDesign::Pocket", "Pocket009")
pocket10.Profile = sketch13
pocket10.Length = 4.1

doc.recompute()
